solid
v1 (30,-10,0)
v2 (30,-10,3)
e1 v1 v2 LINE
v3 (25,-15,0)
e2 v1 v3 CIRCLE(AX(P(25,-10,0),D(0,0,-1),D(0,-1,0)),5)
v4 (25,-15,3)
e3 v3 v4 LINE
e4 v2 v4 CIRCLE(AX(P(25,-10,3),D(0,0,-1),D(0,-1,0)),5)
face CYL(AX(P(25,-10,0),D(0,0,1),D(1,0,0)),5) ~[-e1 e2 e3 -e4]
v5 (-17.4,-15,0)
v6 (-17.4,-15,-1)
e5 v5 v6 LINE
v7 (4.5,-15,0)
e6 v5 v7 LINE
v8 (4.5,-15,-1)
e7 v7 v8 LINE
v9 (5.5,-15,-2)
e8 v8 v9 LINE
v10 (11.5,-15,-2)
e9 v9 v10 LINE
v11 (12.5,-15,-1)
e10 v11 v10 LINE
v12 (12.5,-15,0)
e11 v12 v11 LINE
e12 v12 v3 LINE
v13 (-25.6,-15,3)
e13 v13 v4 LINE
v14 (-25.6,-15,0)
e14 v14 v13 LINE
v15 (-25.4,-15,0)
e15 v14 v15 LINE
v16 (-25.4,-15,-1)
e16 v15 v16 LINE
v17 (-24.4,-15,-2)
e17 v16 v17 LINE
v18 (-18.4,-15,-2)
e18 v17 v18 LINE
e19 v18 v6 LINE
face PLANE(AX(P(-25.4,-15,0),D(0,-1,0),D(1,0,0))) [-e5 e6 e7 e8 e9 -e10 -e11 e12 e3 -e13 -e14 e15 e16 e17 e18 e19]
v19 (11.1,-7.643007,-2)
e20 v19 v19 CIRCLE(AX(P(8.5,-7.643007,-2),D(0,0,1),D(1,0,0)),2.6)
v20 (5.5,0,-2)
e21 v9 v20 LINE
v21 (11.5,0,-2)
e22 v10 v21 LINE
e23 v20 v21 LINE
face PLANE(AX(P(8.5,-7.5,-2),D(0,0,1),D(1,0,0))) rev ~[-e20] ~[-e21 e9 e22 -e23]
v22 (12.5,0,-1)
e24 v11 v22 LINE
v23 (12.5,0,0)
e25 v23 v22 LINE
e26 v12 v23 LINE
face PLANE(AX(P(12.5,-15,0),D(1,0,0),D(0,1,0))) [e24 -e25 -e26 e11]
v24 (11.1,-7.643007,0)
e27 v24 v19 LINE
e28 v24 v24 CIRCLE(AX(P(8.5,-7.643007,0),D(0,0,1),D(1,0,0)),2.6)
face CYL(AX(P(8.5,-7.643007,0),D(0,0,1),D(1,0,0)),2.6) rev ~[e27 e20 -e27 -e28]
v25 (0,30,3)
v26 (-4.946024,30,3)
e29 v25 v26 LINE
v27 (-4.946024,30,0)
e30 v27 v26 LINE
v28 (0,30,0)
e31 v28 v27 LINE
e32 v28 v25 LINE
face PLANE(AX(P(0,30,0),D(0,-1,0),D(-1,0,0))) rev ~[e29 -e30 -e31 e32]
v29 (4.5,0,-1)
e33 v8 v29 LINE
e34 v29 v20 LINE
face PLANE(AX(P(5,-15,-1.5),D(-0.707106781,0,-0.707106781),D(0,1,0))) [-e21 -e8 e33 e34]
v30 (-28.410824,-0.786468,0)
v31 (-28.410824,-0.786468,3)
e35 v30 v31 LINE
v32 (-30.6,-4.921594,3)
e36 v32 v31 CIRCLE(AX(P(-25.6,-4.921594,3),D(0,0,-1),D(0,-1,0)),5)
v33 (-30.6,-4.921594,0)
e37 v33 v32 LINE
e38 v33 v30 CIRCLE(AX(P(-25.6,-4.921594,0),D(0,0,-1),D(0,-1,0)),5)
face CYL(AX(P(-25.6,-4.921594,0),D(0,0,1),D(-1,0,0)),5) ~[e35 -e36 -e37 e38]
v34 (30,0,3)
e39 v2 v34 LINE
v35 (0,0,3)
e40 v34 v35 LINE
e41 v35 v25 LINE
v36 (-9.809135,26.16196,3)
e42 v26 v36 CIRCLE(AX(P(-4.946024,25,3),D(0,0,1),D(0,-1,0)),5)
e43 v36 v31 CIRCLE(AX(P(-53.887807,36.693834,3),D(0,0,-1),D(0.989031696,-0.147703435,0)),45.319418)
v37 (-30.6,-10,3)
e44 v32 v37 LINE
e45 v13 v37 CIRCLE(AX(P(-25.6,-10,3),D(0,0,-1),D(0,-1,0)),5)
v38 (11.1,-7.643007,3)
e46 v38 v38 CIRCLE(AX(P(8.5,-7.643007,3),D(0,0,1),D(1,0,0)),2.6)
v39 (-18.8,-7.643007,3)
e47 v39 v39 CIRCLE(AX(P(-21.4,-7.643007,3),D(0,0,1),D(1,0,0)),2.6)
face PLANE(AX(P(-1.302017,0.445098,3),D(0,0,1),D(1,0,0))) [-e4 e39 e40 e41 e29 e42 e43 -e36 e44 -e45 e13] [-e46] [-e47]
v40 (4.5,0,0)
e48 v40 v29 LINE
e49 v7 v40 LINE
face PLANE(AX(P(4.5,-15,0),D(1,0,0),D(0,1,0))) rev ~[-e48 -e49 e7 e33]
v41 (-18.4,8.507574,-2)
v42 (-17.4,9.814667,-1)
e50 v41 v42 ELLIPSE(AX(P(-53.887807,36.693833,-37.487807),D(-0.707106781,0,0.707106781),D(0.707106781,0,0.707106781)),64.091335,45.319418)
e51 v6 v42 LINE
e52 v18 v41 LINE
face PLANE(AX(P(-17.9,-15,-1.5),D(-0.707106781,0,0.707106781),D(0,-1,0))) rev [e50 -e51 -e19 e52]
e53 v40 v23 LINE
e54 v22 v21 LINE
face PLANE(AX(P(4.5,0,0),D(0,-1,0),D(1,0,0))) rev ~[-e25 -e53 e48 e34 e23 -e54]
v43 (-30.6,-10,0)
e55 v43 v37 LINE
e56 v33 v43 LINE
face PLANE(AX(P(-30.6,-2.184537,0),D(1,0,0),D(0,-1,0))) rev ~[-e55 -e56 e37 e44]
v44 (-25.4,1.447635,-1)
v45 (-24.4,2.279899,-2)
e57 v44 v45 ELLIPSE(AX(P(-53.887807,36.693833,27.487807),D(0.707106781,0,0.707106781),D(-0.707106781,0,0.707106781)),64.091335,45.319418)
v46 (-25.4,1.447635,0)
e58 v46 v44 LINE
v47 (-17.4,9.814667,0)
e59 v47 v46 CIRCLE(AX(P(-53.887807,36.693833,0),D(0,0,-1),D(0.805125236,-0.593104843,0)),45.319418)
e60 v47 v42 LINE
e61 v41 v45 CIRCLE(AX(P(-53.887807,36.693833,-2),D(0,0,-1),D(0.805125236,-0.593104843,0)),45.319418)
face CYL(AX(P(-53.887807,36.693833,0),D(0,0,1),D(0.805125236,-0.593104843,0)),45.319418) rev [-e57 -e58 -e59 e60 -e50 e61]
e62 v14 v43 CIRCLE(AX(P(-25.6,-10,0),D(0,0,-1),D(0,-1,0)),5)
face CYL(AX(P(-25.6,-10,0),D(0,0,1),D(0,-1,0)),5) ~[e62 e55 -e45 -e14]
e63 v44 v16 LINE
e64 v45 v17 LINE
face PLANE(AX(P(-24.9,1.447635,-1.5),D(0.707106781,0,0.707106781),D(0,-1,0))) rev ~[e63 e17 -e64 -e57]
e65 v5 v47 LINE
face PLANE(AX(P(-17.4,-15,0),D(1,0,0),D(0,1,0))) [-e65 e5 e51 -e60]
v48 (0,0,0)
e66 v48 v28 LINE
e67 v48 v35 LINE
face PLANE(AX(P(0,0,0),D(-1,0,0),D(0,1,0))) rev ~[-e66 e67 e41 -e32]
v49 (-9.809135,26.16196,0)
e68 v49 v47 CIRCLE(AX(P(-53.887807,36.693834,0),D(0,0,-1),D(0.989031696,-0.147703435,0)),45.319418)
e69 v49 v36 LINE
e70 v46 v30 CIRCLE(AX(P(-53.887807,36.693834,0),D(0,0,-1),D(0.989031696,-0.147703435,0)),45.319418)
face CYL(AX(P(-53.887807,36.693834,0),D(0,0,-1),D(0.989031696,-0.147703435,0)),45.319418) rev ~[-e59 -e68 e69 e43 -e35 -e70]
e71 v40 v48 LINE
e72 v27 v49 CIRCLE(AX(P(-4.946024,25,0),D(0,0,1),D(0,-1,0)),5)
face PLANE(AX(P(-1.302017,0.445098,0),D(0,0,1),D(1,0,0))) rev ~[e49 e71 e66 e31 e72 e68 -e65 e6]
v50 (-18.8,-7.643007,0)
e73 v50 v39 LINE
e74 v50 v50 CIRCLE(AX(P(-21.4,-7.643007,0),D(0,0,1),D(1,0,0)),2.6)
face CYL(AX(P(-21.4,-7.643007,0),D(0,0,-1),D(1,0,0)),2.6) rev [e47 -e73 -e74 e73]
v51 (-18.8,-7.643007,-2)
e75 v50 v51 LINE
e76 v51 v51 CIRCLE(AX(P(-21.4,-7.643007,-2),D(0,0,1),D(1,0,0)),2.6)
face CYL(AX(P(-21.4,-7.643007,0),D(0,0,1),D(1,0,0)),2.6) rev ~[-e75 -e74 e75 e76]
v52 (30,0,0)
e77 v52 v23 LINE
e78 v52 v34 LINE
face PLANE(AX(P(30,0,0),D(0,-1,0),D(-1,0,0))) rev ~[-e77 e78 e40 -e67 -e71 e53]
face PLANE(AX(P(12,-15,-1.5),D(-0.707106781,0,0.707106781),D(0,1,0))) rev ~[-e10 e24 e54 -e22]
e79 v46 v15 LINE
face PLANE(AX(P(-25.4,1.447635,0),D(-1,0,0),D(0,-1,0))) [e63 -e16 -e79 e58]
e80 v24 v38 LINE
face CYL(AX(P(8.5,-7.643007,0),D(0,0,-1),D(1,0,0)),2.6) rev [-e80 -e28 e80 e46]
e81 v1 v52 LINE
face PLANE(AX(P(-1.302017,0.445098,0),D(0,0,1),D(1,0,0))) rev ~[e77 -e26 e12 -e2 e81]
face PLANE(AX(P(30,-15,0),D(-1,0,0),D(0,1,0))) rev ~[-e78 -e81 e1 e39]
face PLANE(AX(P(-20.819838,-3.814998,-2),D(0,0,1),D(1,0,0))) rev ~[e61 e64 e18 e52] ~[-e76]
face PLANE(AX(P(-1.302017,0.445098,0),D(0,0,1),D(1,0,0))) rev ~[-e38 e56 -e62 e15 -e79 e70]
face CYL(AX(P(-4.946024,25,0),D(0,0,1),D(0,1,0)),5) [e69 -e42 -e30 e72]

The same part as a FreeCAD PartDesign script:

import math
import FreeCAD as App
import Part
import Sketcher
from FreeCAD import Vector
Q = App.Units.Quantity


def edges_at(feature, points):
    """Names of the edges that pass closest to the given points."""
    edges = feature.Shape.Edges
    near = lambda p: min(range(len(edges)), key=lambda i: edges[i].distToShape(Part.Vertex(*p))[0])
    return sorted({f"Edge{near(p) + 1}" for p in points})

doc = App.newDocument("Part")
params = doc.addObject("Spreadsheet::Sheet", "Params")
for row, (alias, value) in enumerate([
    ("sketch1_diameter", "5.2 mm"),
    ("sketch1_width", "30 mm"),
    ("sketch1_height", "15 mm"),
    ("sketch1_width2", "60.6 mm"),
    ("pad1_length", "3 mm"),
    ("fillet_radius", "5 mm"),
    ("sketch2_diameter", "5.2 mm"),
    ("sketch2_width", "8 mm"),
    ("sketch2_height", "15 mm"),
    ("pad2_length", "2 mm"),
    ("chamfer_size", "1 mm"),
], start=1):
    params.set(f"A{row}", alias)
    params.set(f"B{row}", "=" + value)
    params.setAlias(f"B{row}", alias)

body = doc.addObject("PartDesign::Body", "Body")

# Sketch on XY plane
sketch1 = body.newObject("Sketcher::SketchObject", "Sketch")
sketch1.AttachmentSupport = (doc.getObject("XY_Plane"), [""])
sketch1.MapMode = "FlatFace"
sketch1.addGeometry([
    Part.LineSegment(Vector(30, 0, 0), Vector(0, 0, 0)),  # 0
    Part.LineSegment(Vector(0, 0, 0), Vector(0, 30, 0)),  # 1
    Part.LineSegment(Vector(0, 30, 0), Vector(-9.065466, 30, 0)),  # 2
    Part.ArcOfCircle(Part.Circle(Vector(-53.887807, 36.693834, 0), Vector(0, 0, 1), 45.319418), math.radians(-59.078757), math.radians(-8.493861)),  # 3
    Part.LineSegment(Vector(-30.6, -2.184537, 0), Vector(-30.6, -15, 0)),  # 4
    Part.LineSegment(Vector(-30.6, -15, 0), Vector(30, -15, 0)),  # 5
    Part.LineSegment(Vector(30, -15, 0), Vector(30, 0, 0)),  # 6
    Part.Circle(Vector(-21.4, -7.643007, 0), Vector(0, 0, 1), 2.6),  # 7
    Part.Circle(Vector(8.5, -7.643007, 0), Vector(0, 0, 1), 2.6),  # 8
], False)
sketch1.addConstraint([
    Sketcher.Constraint("Coincident", 0, 2, 1, 1),
    Sketcher.Constraint("Coincident", 1, 2, 2, 1),
    Sketcher.Constraint("Coincident", 2, 2, 3, 2),
    Sketcher.Constraint("Coincident", 3, 1, 4, 1),
    Sketcher.Constraint("Coincident", 4, 2, 5, 1),
    Sketcher.Constraint("Coincident", 5, 2, 6, 1),
    Sketcher.Constraint("Coincident", 6, 2, 0, 1),
    Sketcher.Constraint("Horizontal", 0),
    Sketcher.Constraint("Vertical", 1),
    Sketcher.Constraint("Horizontal", 2),
    Sketcher.Constraint("Vertical", 4),
    Sketcher.Constraint("Horizontal", 5),
    Sketcher.Constraint("Vertical", 6),
    Sketcher.Constraint("Coincident", 0, 2, -1, 1),
    Sketcher.Constraint("Equal", 7, 8),
    Sketcher.Constraint("Horizontal", 7, 3, 8, 3),
    Sketcher.Constraint("Equal", 0, 1),
    Sketcher.Constraint("Diameter", 7, Q("5.2 mm")),
    Sketcher.Constraint("DistanceX", 0, 2, 0, 1, Q("30 mm")),
    Sketcher.Constraint("DistanceY", 6, 1, 6, 2, Q("15 mm")),
    Sketcher.Constraint("DistanceX", 5, 1, 5, 2, Q("60.6 mm")),
    Sketcher.Constraint("DistanceX", 7, 3, -1, 1, Q("21.4 mm")),
    Sketcher.Constraint("DistanceX", -1, 1, 8, 3, Q("8.5 mm")),
    Sketcher.Constraint("Radius", 3, Q("45.319418 mm")),
    Sketcher.Constraint("DistanceX", 2, 2, 2, 1, Q("9.065466 mm")),
    Sketcher.Constraint("DistanceY", 4, 2, 4, 1, Q("12.815463 mm")),
    Sketcher.Constraint("DistanceY", 7, 3, 3, 3, Q("44.336841 mm")),
])
sketch1.setExpression("Constraints[17]", "Params.sketch1_diameter")
sketch1.setExpression("Constraints[18]", "Params.sketch1_width")
sketch1.setExpression("Constraints[19]", "Params.sketch1_height")
sketch1.setExpression("Constraints[20]", "Params.sketch1_width2")
pad1 = body.newObject("PartDesign::Pad", "Pad")
pad1.Profile = sketch1
pad1.setExpression("Length", "Params.pad1_length")
doc.recompute()

fillet = body.newObject("PartDesign::Fillet", "Fillet")
fillet.Base = (pad1, edges_at(pad1, [
    (-30.6, -15, 1.5),
    (-30.6, -2.185, 1.5),
    (30, -15, 1.5),
    (-9.065, 30, 1.5),
]))
fillet.setExpression("Radius", "Params.fillet_radius")

# Sketch on XY plane
sketch2 = body.newObject("Sketcher::SketchObject", "Sketch001")
sketch2.AttachmentSupport = (doc.getObject("XY_Plane"), [""])
sketch2.MapMode = "FlatFace"
sketch2.addGeometry([
    Part.LineSegment(Vector(-25.4, 1.447635, 0), Vector(-25.4, -15, 0)),  # 0
    Part.LineSegment(Vector(-25.4, -15, 0), Vector(-17.4, -15, 0)),  # 1
    Part.LineSegment(Vector(-17.4, -15, 0), Vector(-17.4, 9.814667, 0)),  # 2
    Part.ArcOfCircle(Part.Circle(Vector(-53.887807, 36.693833, 0), Vector(0, 0, 1), 45.319418), math.radians(-51.053058), math.radians(-36.377648)),  # 3
    Part.Circle(Vector(-21.4, -7.643007, 0), Vector(0, 0, 1), 2.6),  # 4
    Part.LineSegment(Vector(4.5, 0, 0), Vector(4.5, -15, 0)),  # 5
    Part.LineSegment(Vector(4.5, -15, 0), Vector(12.5, -15, 0)),  # 6
    Part.LineSegment(Vector(12.5, -15, 0), Vector(12.5, 0, 0)),  # 7
    Part.LineSegment(Vector(12.5, 0, 0), Vector(4.5, 0, 0)),  # 8
    Part.Circle(Vector(8.5, -7.643007, 0), Vector(0, 0, 1), 2.6),  # 9
], False)
sketch2.addConstraint([
    Sketcher.Constraint("Coincident", 0, 2, 1, 1),
    Sketcher.Constraint("Coincident", 1, 2, 2, 1),
    Sketcher.Constraint("Coincident", 2, 2, 3, 2),
    Sketcher.Constraint("Coincident", 3, 1, 0, 1),
    Sketcher.Constraint("Coincident", 5, 2, 6, 1),
    Sketcher.Constraint("Coincident", 6, 2, 7, 1),
    Sketcher.Constraint("Coincident", 7, 2, 8, 1),
    Sketcher.Constraint("Coincident", 8, 2, 5, 1),
    Sketcher.Constraint("Vertical", 0),
    Sketcher.Constraint("Horizontal", 1),
    Sketcher.Constraint("Vertical", 2),
    Sketcher.Constraint("Vertical", 5),
    Sketcher.Constraint("Horizontal", 6),
    Sketcher.Constraint("Vertical", 7),
    Sketcher.Constraint("Horizontal", 8),
    Sketcher.Constraint("Equal", 4, 9),
    Sketcher.Constraint("PointOnObject", 7, 2, -1),
    Sketcher.Constraint("Horizontal", 4, 3, 9, 3),
    Sketcher.Constraint("Horizontal", 1, 2, 5, 2),
    Sketcher.Constraint("Equal", 1, 6),
    Sketcher.Constraint("Diameter", 4, Q("5.2 mm")),
    Sketcher.Constraint("DistanceX", 1, 1, 1, 2, Q("8 mm")),
    Sketcher.Constraint("DistanceY", 5, 2, 5, 1, Q("15 mm")),
    Sketcher.Constraint("DistanceX", 0, 2, 4, 3, Q("4 mm")),
    Sketcher.Constraint("DistanceX", 5, 2, 9, 3, Q("4 mm")),
    Sketcher.Constraint("DistanceX", 4, 3, -1, 1, Q("21.4 mm")),
    Sketcher.Constraint("DistanceX", -1, 1, 9, 3, Q("8.5 mm")),
    Sketcher.Constraint("Radius", 3, Q("45.319418 mm")),
    Sketcher.Constraint("DistanceY", 0, 2, 0, 1, Q("16.447635 mm")),
    Sketcher.Constraint("DistanceY", 2, 1, 2, 2, Q("24.814667 mm")),
    Sketcher.Constraint("DistanceY", 4, 3, 3, 3, Q("44.33684 mm")),
])
sketch2.setExpression("Constraints[20]", "Params.sketch2_diameter")
sketch2.setExpression("Constraints[21]", "Params.sketch2_width")
sketch2.setExpression("Constraints[22]", "Params.sketch2_height")
pad2 = body.newObject("PartDesign::Pad", "Pad001")
pad2.Profile = sketch2
pad2.setExpression("Length", "Params.pad2_length")
pad2.Reversed = True
doc.recompute()

chamfer = body.newObject("PartDesign::Chamfer", "Chamfer")
chamfer.Base = (pad2, edges_at(pad2, [
    (-25.4, -6.776, -2),
    (-17.4, -2.593, -2),
    (4.5, -7.5, -2),
    (12.5, -7.5, -2),
]))
chamfer.setExpression("Size", "Params.chamfer_size")

doc.recompute()
